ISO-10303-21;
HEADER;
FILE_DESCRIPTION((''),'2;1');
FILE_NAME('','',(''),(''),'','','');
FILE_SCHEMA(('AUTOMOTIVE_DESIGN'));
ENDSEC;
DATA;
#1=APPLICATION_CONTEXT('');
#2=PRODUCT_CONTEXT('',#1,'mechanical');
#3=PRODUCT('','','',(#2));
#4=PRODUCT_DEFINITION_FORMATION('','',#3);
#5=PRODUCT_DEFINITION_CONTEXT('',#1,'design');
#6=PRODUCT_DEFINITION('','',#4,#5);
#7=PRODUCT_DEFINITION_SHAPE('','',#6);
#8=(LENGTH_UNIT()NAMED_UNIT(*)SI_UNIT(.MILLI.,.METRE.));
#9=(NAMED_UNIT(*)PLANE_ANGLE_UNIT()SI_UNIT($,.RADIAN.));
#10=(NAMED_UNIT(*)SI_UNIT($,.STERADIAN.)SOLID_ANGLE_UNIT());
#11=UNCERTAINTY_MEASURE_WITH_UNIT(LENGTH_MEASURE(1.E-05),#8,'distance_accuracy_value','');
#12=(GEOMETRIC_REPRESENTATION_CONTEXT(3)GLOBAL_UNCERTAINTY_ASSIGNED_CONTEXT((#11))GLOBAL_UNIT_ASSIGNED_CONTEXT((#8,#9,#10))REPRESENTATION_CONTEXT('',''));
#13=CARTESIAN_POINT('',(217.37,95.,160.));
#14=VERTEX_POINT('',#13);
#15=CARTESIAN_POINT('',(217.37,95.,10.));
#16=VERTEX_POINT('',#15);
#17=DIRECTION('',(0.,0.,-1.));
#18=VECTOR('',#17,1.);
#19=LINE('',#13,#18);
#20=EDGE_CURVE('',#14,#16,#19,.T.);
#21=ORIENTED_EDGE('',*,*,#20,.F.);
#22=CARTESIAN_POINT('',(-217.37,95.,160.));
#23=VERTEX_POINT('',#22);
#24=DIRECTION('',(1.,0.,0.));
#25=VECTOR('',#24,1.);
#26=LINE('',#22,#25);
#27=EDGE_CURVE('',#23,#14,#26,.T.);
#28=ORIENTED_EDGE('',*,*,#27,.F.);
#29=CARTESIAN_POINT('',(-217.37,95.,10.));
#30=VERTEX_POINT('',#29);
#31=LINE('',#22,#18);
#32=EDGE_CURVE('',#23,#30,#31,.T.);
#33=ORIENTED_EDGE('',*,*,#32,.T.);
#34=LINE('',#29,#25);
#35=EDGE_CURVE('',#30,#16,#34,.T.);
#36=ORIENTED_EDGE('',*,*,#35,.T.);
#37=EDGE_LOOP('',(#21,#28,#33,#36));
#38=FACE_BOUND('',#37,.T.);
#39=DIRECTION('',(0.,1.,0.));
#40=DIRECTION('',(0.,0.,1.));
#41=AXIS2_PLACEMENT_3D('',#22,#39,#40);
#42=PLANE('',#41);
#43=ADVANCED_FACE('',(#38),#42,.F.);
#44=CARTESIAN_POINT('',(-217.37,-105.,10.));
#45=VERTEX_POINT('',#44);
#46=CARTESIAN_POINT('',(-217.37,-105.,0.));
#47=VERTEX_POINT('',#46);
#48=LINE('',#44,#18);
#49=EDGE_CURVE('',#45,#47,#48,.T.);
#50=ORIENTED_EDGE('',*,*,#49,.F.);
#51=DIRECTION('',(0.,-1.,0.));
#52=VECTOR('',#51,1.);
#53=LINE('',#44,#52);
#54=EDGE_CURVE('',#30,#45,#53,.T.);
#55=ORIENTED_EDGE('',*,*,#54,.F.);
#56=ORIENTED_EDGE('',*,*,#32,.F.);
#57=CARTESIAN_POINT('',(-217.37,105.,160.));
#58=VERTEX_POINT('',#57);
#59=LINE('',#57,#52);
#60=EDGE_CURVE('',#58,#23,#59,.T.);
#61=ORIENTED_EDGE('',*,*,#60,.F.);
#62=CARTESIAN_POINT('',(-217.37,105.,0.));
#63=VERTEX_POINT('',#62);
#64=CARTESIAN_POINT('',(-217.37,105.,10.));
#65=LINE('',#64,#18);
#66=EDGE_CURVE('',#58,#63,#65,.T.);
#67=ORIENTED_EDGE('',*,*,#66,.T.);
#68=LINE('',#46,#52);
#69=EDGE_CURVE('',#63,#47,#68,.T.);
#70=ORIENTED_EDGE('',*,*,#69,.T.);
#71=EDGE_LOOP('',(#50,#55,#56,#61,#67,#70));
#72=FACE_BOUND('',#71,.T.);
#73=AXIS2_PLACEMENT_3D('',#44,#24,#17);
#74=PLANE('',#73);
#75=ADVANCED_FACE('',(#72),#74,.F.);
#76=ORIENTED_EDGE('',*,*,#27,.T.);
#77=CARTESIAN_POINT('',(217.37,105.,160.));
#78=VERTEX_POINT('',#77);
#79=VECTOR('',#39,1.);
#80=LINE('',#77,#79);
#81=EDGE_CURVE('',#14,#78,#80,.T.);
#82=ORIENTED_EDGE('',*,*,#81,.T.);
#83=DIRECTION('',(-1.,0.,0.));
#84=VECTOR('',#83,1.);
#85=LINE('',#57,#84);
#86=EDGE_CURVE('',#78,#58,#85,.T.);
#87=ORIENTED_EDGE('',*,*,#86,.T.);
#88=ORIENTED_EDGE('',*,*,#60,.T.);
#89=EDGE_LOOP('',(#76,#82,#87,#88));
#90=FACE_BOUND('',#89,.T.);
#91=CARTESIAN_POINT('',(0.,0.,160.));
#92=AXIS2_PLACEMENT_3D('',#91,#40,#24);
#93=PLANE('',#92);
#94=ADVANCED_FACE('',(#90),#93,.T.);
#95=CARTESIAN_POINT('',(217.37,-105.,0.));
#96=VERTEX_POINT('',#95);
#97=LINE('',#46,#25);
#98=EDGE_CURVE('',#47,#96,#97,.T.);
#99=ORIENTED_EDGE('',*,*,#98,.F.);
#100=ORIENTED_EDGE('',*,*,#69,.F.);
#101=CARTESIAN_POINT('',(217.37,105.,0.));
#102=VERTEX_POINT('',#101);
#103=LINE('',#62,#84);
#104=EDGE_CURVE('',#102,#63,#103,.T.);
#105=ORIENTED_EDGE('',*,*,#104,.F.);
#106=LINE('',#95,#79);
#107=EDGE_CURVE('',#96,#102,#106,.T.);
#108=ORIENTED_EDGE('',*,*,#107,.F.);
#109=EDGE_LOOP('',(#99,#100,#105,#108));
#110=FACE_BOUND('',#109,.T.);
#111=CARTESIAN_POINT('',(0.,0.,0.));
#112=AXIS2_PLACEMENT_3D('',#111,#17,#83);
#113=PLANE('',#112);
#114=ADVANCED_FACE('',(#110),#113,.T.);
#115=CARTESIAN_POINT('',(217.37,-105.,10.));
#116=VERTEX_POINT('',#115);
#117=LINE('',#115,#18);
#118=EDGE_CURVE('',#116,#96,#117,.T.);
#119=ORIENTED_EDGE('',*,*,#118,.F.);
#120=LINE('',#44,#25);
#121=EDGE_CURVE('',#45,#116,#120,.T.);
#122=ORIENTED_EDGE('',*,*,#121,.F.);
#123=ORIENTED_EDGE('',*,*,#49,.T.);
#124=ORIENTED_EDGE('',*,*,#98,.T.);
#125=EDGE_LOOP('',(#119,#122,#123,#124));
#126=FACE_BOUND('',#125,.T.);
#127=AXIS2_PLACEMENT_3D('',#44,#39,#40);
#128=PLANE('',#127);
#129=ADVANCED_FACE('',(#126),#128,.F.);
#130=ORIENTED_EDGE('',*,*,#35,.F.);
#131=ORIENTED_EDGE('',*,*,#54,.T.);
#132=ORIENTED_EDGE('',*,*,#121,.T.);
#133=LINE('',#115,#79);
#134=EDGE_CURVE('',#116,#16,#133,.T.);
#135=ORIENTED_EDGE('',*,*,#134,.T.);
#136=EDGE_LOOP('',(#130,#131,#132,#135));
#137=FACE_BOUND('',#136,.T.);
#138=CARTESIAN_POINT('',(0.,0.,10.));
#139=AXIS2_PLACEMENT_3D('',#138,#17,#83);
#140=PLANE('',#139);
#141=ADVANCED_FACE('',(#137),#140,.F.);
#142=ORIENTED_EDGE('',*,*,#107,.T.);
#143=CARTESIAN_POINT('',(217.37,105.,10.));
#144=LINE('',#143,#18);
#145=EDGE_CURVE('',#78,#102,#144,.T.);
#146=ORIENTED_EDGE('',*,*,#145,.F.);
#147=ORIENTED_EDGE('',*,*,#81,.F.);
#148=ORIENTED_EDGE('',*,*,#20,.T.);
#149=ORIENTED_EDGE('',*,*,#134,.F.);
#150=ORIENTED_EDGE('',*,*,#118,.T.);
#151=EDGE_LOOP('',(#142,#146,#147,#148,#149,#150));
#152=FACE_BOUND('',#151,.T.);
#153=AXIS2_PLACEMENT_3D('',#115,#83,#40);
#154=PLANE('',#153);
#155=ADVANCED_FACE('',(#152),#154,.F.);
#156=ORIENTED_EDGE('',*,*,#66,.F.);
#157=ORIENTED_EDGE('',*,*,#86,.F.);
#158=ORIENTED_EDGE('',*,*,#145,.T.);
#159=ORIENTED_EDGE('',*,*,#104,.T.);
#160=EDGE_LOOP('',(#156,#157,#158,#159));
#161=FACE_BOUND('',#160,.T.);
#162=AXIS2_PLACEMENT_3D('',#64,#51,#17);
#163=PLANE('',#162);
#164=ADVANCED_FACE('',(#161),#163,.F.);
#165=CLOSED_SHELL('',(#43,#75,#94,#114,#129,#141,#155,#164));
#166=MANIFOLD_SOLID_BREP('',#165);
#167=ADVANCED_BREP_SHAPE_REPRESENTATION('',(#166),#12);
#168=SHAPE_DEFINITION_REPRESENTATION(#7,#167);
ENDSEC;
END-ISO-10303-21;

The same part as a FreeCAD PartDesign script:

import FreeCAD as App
import Part
import Sketcher
from FreeCAD import Vector
Q = App.Units.Quantity

doc = App.newDocument("Part")
body = doc.addObject("PartDesign::Body", "Body")

# Sketch on XY plane
sketch1 = doc.addObject("Sketcher::SketchObject", "Sketch")
body.addObject(sketch1)
sketch1.AttachmentSupport = (doc.XY_Plane, [""])
sketch1.MapMode = "FlatFace"
sketch1.addGeometry([
    Part.LineSegment(Vector(-217, 105, 0), Vector(-217, -105, 0)),
    Part.LineSegment(Vector(-217, -105, 0), Vector(217, -105, 0)),
    Part.LineSegment(Vector(217, -105, 0), Vector(217, 105, 0)),
    Part.LineSegment(Vector(217, 105, 0), Vector(-217, 105, 0)),
], False)
sketch1.addConstraint([
    Sketcher.Constraint("Coincident", 0, 2, 1, 1),
    Sketcher.Constraint("Coincident", 1, 2, 2, 1),
    Sketcher.Constraint("Coincident", 2, 2, 3, 1),
    Sketcher.Constraint("Coincident", 3, 2, 0, 1),
    Sketcher.Constraint("Vertical", 0),
    Sketcher.Constraint("Horizontal", 1),
    Sketcher.Constraint("Vertical", 2),
    Sketcher.Constraint("Horizontal", 3),
    Sketcher.Constraint("Symmetric", 0, 2, 2, 2, -1, 1),
    Sketcher.Constraint("DistanceY", 0, 2, 0, 1, Q("210 mm")),
    Sketcher.Constraint("DistanceX", 1, 1, 1, 2, Q("434.74 mm")),
])
pad1 = doc.addObject("PartDesign::Pad", "Pad")
body.addObject(pad1)
pad1.Profile = sketch1
pad1.Length = 10

# Sketch on XY plane
sketch2 = doc.addObject("Sketcher::SketchObject", "Sketch001")
body.addObject(sketch2)
sketch2.AttachmentSupport = (doc.XY_Plane, [""])
sketch2.MapMode = "FlatFace"
sketch2.AttachmentOffset = App.Placement(Vector(0, 0, 10), App.Rotation())
sketch2.addGeometry([
    Part.LineSegment(Vector(-217, 105, 0), Vector(-217, 95, 0)),
    Part.LineSegment(Vector(-217, 95, 0), Vector(217, 95, 0)),
    Part.LineSegment(Vector(217, 95, 0), Vector(217, 105, 0)),
    Part.LineSegment(Vector(217, 105, 0), Vector(-217, 105, 0)),
], False)
sketch2.addConstraint([
    Sketcher.Constraint("Coincident", 0, 2, 1, 1),
    Sketcher.Constraint("Coincident", 1, 2, 2, 1),
    Sketcher.Constraint("Coincident", 2, 2, 3, 1),
    Sketcher.Constraint("Coincident", 3, 2, 0, 1),
    Sketcher.Constraint("Vertical", 0),
    Sketcher.Constraint("Horizontal", 1),
    Sketcher.Constraint("Vertical", 2),
    Sketcher.Constraint("Horizontal", 3),
    Sketcher.Constraint("DistanceY", 0, 2, 0, 1, Q("10 mm")),
    Sketcher.Constraint("DistanceY", -1, 1, 0, 2, Q("95 mm")),
    Sketcher.Constraint("DistanceX", 1, 1, 1, 2, Q("434.74 mm")),
    Sketcher.Constraint("DistanceX", 0, 2, -1, 1, Q("217.37 mm")),
])
pad2 = doc.addObject("PartDesign::Pad", "Pad001")
body.addObject(pad2)
pad2.Profile = sketch2
pad2.Length = 150

doc.recompute()
